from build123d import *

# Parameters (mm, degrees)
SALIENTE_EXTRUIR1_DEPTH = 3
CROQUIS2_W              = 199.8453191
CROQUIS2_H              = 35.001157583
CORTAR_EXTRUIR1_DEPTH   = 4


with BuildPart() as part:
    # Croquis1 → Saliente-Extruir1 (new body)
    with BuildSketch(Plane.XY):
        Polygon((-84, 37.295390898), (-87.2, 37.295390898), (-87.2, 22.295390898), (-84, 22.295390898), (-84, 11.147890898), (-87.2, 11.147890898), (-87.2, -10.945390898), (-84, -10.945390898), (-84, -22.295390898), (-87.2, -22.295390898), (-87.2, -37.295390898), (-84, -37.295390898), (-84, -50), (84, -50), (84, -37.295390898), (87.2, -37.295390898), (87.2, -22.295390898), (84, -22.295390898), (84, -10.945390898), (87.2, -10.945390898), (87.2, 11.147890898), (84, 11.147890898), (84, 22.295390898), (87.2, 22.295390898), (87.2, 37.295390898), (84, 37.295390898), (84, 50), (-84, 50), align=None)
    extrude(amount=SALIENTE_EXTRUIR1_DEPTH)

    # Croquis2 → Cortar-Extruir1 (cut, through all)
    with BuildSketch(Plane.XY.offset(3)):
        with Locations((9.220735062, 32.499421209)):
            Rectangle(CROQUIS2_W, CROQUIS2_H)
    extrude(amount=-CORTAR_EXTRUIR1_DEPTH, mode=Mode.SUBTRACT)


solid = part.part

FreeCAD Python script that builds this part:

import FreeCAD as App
import Part
import Sketcher

V = App.Vector
Q = App.Units.Quantity

doc = App.newDocument("Part")
body = doc.addObject("PartDesign::Body", "Body")

sketch1 = body.newObject("Sketcher::SketchObject", "Sketch")
sketch1.AttachmentSupport = (doc.getObject("XY_Plane"), [""])
sketch1.MapMode = "FlatFace"
sketch1.addGeometry(Part.LineSegment(V(-84, 37.3, 0), V(-87.2, 37.3, 0)), False)
sketch1.addGeometry(Part.LineSegment(V(-87.2, 37.3, 0), V(-87.2, 22.3, 0)), False)
sketch1.addGeometry(Part.LineSegment(V(-87.2, 22.3, 0), V(-84, 22.3, 0)), False)
sketch1.addGeometry(Part.LineSegment(V(-84, 22.3, 0), V(-84, 11.1, 0)), False)
sketch1.addGeometry(Part.LineSegment(V(-84, 11.1, 0), V(-87.2, 11.1, 0)), False)
sketch1.addGeometry(Part.LineSegment(V(-87.2, 11.1, 0), V(-87.2, -10.9, 0)), False)
sketch1.addGeometry(Part.LineSegment(V(-87.2, -10.9, 0), V(-84, -10.9, 0)), False)
sketch1.addGeometry(Part.LineSegment(V(-84, -10.9, 0), V(-84, -22.3, 0)), False)
sketch1.addGeometry(Part.LineSegment(V(-84, -22.3, 0), V(-87.2, -22.3, 0)), False)
sketch1.addGeometry(Part.LineSegment(V(-87.2, -22.3, 0), V(-87.2, -37.3, 0)), False)
sketch1.addGeometry(Part.LineSegment(V(-87.2, -37.3, 0), V(-84, -37.3, 0)), False)
sketch1.addGeometry(Part.LineSegment(V(-84, -37.3, 0), V(-84, -50, 0)), False)
sketch1.addGeometry(Part.LineSegment(V(-84, -50, 0), V(84, -50, 0)), False)
sketch1.addGeometry(Part.LineSegment(V(84, -50, 0), V(84, -37.3, 0)), False)
sketch1.addGeometry(Part.LineSegment(V(84, -37.3, 0), V(87.2, -37.3, 0)), False)
sketch1.addGeometry(Part.LineSegment(V(87.2, -37.3, 0), V(87.2, -22.3, 0)), False)
sketch1.addGeometry(Part.LineSegment(V(87.2, -22.3, 0), V(84, -22.3, 0)), False)
sketch1.addGeometry(Part.LineSegment(V(84, -22.3, 0), V(84, -10.9, 0)), False)
sketch1.addGeometry(Part.LineSegment(V(84, -10.9, 0), V(87.2, -10.9, 0)), False)
sketch1.addGeometry(Part.LineSegment(V(87.2, -10.9, 0), V(87.2, 11.1, 0)), False)
sketch1.addGeometry(Part.LineSegment(V(87.2, 11.1, 0), V(84, 11.1, 0)), False)
sketch1.addGeometry(Part.LineSegment(V(84, 11.1, 0), V(84, 22.3, 0)), False)
sketch1.addGeometry(Part.LineSegment(V(84, 22.3, 0), V(87.2, 22.3, 0)), False)
sketch1.addGeometry(Part.LineSegment(V(87.2, 22.3, 0), V(87.2, 37.3, 0)), False)
sketch1.addGeometry(Part.LineSegment(V(87.2, 37.3, 0), V(84, 37.3, 0)), False)
sketch1.addGeometry(Part.LineSegment(V(84, 37.3, 0), V(84, 50, 0)), False)
sketch1.addGeometry(Part.LineSegment(V(84, 50, 0), V(-84, 50, 0)), False)
sketch1.addGeometry(Part.LineSegment(V(-84, 50, 0), V(-84, 37.3, 0)), False)
sketch1.addConstraint(Sketcher.Constraint("Coincident", 0, 2, 1, 1))
sketch1.addConstraint(Sketcher.Constraint("Coincident", 1, 2, 2, 1))
sketch1.addConstraint(Sketcher.Constraint("Coincident", 2, 2, 3, 1))
sketch1.addConstraint(Sketcher.Constraint("Coincident", 3, 2, 4, 1))
sketch1.addConstraint(Sketcher.Constraint("Coincident", 4, 2, 5, 1))
sketch1.addConstraint(Sketcher.Constraint("Coincident", 5, 2, 6, 1))
sketch1.addConstraint(Sketcher.Constraint("Coincident", 6, 2, 7, 1))
sketch1.addConstraint(Sketcher.Constraint("Coincident", 7, 2, 8, 1))
sketch1.addConstraint(Sketcher.Constraint("Coincident", 8, 2, 9, 1))
sketch1.addConstraint(Sketcher.Constraint("Coincident", 9, 2, 10, 1))
sketch1.addConstraint(Sketcher.Constraint("Coincident", 10, 2, 11, 1))
sketch1.addConstraint(Sketcher.Constraint("Coincident", 11, 2, 12, 1))
sketch1.addConstraint(Sketcher.Constraint("Coincident", 12, 2, 13, 1))
sketch1.addConstraint(Sketcher.Constraint("Coincident", 13, 2, 14, 1))
sketch1.addConstraint(Sketcher.Constraint("Coincident", 14, 2, 15, 1))
sketch1.addConstraint(Sketcher.Constraint("Coincident", 15, 2, 16, 1))
sketch1.addConstraint(Sketcher.Constraint("Coincident", 16, 2, 17, 1))
sketch1.addConstraint(Sketcher.Constraint("Coincident", 17, 2, 18, 1))
sketch1.addConstraint(Sketcher.Constraint("Coincident", 18, 2, 19, 1))
sketch1.addConstraint(Sketcher.Constraint("Coincident", 19, 2, 20, 1))
sketch1.addConstraint(Sketcher.Constraint("Coincident", 20, 2, 21, 1))
sketch1.addConstraint(Sketcher.Constraint("Coincident", 21, 2, 22, 1))
sketch1.addConstraint(Sketcher.Constraint("Coincident", 22, 2, 23, 1))
sketch1.addConstraint(Sketcher.Constraint("Coincident", 23, 2, 24, 1))
sketch1.addConstraint(Sketcher.Constraint("Coincident", 24, 2, 25, 1))
sketch1.addConstraint(Sketcher.Constraint("Coincident", 25, 2, 26, 1))
sketch1.addConstraint(Sketcher.Constraint("Coincident", 26, 2, 27, 1))
sketch1.addConstraint(Sketcher.Constraint("Coincident", 27, 2, 0, 1))
sketch1.addConstraint(Sketcher.Constraint("Horizontal", 0))
sketch1.addConstraint(Sketcher.Constraint("Vertical", 1))
sketch1.addConstraint(Sketcher.Constraint("Horizontal", 2))
sketch1.addConstraint(Sketcher.Constraint("Vertical", 3))
sketch1.addConstraint(Sketcher.Constraint("Horizontal", 4))
sketch1.addConstraint(Sketcher.Constraint("Vertical", 5))
sketch1.addConstraint(Sketcher.Constraint("Horizontal", 6))
sketch1.addConstraint(Sketcher.Constraint("Vertical", 7))
sketch1.addConstraint(Sketcher.Constraint("Horizontal", 8))
sketch1.addConstraint(Sketcher.Constraint("Vertical", 9))
sketch1.addConstraint(Sketcher.Constraint("Horizontal", 10))
sketch1.addConstraint(Sketcher.Constraint("Vertical", 11))
sketch1.addConstraint(Sketcher.Constraint("Horizontal", 12))
sketch1.addConstraint(Sketcher.Constraint("Vertical", 13))
sketch1.addConstraint(Sketcher.Constraint("Horizontal", 14))
sketch1.addConstraint(Sketcher.Constraint("Vertical", 15))
sketch1.addConstraint(Sketcher.Constraint("Horizontal", 16))
sketch1.addConstraint(Sketcher.Constraint("Vertical", 17))
sketch1.addConstraint(Sketcher.Constraint("Horizontal", 18))
sketch1.addConstraint(Sketcher.Constraint("Vertical", 19))
sketch1.addConstraint(Sketcher.Constraint("Horizontal", 20))
sketch1.addConstraint(Sketcher.Constraint("Vertical", 21))
sketch1.addConstraint(Sketcher.Constraint("Horizontal", 22))
sketch1.addConstraint(Sketcher.Constraint("Vertical", 23))
sketch1.addConstraint(Sketcher.Constraint("Horizontal", 24))
sketch1.addConstraint(Sketcher.Constraint("Vertical", 25))
sketch1.addConstraint(Sketcher.Constraint("Horizontal", 26))
sketch1.addConstraint(Sketcher.Constraint("Vertical", 27))
sketch1.addConstraint(Sketcher.Constraint("Symmetric", 0, 2, 14, 2, -1, 1))
sketch1.addConstraint(Sketcher.Constraint("Symmetric", 2, 2, 16, 2, -1, 1))
sketch1.addConstraint(Sketcher.Constraint("Symmetric", 7, 2, 21, 2, -1, 1))
sketch1.addConstraint(Sketcher.Constraint("Symmetric", 9, 2, 23, 2, -1, 1))
sketch1.addConstraint(Sketcher.Constraint("Symmetric", 11, 2, 25, 2, -1, 1))
sketch1.addConstraint(Sketcher.Constraint("Symmetric", 10, 2, 13, 2, -2))
sketch1.addConstraint(Sketcher.Constraint("Symmetric", 8, 2, 15, 2, -2))
sketch1.addConstraint(Sketcher.Constraint("Symmetric", 6, 2, 17, 2, -2))
sketch1.addConstraint(Sketcher.Constraint("Symmetric", 4, 2, 19, 2, -2))
sketch1.addConstraint(Sketcher.Constraint("Vertical", 1, 2, 4, 2))
sketch1.addConstraint(Sketcher.Constraint("Vertical", 7, 2, 10, 2))
sketch1.addConstraint(Sketcher.Constraint("Vertical", 11, 2, 26, 2))
sketch1.addConstraint(Sketcher.Constraint("DistanceX", 12, 1, 12, 2, Q("168 mm")))
sketch1.addConstraint(Sketcher.Constraint("DistanceY", 1, 2, 1, 1, Q("15 mm")))
sketch1.addConstraint(Sketcher.Constraint("DistanceX", 0, 2, 0, 1, Q("3.2 mm")))
sketch1.addConstraint(Sketcher.Constraint("DistanceY", 11, 2, -1, 1, Q("50 mm")))
sketch1.addConstraint(Sketcher.Constraint("DistanceY", 7, 2, 7, 1, Q("11.35 mm")))
sketch1.addConstraint(Sketcher.Constraint("DistanceY", 3, 2, 3, 1, Q("11.1475 mm")))
sketch1.addConstraint(Sketcher.Constraint("DistanceY", 5, 2, 5, 1, Q("22.093282 mm")))
pad1 = body.newObject("PartDesign::Pad", "Pad")
pad1.Profile = sketch1
pad1.Length = 3

sketch2 = body.newObject("Sketcher::SketchObject", "Sketch001")
sketch2.AttachmentSupport = (doc.getObject("XY_Plane"), [""])
sketch2.MapMode = "FlatFace"
sketch2.AttachmentOffset = App.Placement(V(0, 0, 3), App.Rotation())
sketch2.addGeometry(Part.LineSegment(V(-91, 50, 0), V(-91, 15, 0)), False)
sketch2.addGeometry(Part.LineSegment(V(-91, 15, 0), V(109, 15, 0)), False)
sketch2.addGeometry(Part.LineSegment(V(109, 15, 0), V(109, 50, 0)), False)
sketch2.addGeometry(Part.LineSegment(V(109, 50, 0), V(-91, 50, 0)), False)
sketch2.addConstraint(Sketcher.Constraint("Coincident", 0, 2, 1, 1))
sketch2.addConstraint(Sketcher.Constraint("Coincident", 1, 2, 2, 1))
sketch2.addConstraint(Sketcher.Constraint("Coincident", 2, 2, 3, 1))
sketch2.addConstraint(Sketcher.Constraint("Coincident", 3, 2, 0, 1))
sketch2.addConstraint(Sketcher.Constraint("Vertical", 0))
sketch2.addConstraint(Sketcher.Constraint("Horizontal", 1))
sketch2.addConstraint(Sketcher.Constraint("Vertical", 2))
sketch2.addConstraint(Sketcher.Constraint("Horizontal", 3))
sketch2.addConstraint(Sketcher.Constraint("DistanceY", -1, 1, 2, 2, Q("50 mm")))
sketch2.addConstraint(Sketcher.Constraint("DistanceX", 1, 1, 1, 2, Q("199.845319 mm")))
sketch2.addConstraint(Sketcher.Constraint("DistanceY", 0, 2, 0, 1, Q("35.001158 mm")))
sketch2.addConstraint(Sketcher.Constraint("DistanceX", 0, 2, -1, 1, Q("90.701924 mm")))
pocket1 = body.newObject("PartDesign::Pocket", "Pocket")
pocket1.Profile = sketch2
pocket1.Type = "ThroughAll"

doc.recompute()
